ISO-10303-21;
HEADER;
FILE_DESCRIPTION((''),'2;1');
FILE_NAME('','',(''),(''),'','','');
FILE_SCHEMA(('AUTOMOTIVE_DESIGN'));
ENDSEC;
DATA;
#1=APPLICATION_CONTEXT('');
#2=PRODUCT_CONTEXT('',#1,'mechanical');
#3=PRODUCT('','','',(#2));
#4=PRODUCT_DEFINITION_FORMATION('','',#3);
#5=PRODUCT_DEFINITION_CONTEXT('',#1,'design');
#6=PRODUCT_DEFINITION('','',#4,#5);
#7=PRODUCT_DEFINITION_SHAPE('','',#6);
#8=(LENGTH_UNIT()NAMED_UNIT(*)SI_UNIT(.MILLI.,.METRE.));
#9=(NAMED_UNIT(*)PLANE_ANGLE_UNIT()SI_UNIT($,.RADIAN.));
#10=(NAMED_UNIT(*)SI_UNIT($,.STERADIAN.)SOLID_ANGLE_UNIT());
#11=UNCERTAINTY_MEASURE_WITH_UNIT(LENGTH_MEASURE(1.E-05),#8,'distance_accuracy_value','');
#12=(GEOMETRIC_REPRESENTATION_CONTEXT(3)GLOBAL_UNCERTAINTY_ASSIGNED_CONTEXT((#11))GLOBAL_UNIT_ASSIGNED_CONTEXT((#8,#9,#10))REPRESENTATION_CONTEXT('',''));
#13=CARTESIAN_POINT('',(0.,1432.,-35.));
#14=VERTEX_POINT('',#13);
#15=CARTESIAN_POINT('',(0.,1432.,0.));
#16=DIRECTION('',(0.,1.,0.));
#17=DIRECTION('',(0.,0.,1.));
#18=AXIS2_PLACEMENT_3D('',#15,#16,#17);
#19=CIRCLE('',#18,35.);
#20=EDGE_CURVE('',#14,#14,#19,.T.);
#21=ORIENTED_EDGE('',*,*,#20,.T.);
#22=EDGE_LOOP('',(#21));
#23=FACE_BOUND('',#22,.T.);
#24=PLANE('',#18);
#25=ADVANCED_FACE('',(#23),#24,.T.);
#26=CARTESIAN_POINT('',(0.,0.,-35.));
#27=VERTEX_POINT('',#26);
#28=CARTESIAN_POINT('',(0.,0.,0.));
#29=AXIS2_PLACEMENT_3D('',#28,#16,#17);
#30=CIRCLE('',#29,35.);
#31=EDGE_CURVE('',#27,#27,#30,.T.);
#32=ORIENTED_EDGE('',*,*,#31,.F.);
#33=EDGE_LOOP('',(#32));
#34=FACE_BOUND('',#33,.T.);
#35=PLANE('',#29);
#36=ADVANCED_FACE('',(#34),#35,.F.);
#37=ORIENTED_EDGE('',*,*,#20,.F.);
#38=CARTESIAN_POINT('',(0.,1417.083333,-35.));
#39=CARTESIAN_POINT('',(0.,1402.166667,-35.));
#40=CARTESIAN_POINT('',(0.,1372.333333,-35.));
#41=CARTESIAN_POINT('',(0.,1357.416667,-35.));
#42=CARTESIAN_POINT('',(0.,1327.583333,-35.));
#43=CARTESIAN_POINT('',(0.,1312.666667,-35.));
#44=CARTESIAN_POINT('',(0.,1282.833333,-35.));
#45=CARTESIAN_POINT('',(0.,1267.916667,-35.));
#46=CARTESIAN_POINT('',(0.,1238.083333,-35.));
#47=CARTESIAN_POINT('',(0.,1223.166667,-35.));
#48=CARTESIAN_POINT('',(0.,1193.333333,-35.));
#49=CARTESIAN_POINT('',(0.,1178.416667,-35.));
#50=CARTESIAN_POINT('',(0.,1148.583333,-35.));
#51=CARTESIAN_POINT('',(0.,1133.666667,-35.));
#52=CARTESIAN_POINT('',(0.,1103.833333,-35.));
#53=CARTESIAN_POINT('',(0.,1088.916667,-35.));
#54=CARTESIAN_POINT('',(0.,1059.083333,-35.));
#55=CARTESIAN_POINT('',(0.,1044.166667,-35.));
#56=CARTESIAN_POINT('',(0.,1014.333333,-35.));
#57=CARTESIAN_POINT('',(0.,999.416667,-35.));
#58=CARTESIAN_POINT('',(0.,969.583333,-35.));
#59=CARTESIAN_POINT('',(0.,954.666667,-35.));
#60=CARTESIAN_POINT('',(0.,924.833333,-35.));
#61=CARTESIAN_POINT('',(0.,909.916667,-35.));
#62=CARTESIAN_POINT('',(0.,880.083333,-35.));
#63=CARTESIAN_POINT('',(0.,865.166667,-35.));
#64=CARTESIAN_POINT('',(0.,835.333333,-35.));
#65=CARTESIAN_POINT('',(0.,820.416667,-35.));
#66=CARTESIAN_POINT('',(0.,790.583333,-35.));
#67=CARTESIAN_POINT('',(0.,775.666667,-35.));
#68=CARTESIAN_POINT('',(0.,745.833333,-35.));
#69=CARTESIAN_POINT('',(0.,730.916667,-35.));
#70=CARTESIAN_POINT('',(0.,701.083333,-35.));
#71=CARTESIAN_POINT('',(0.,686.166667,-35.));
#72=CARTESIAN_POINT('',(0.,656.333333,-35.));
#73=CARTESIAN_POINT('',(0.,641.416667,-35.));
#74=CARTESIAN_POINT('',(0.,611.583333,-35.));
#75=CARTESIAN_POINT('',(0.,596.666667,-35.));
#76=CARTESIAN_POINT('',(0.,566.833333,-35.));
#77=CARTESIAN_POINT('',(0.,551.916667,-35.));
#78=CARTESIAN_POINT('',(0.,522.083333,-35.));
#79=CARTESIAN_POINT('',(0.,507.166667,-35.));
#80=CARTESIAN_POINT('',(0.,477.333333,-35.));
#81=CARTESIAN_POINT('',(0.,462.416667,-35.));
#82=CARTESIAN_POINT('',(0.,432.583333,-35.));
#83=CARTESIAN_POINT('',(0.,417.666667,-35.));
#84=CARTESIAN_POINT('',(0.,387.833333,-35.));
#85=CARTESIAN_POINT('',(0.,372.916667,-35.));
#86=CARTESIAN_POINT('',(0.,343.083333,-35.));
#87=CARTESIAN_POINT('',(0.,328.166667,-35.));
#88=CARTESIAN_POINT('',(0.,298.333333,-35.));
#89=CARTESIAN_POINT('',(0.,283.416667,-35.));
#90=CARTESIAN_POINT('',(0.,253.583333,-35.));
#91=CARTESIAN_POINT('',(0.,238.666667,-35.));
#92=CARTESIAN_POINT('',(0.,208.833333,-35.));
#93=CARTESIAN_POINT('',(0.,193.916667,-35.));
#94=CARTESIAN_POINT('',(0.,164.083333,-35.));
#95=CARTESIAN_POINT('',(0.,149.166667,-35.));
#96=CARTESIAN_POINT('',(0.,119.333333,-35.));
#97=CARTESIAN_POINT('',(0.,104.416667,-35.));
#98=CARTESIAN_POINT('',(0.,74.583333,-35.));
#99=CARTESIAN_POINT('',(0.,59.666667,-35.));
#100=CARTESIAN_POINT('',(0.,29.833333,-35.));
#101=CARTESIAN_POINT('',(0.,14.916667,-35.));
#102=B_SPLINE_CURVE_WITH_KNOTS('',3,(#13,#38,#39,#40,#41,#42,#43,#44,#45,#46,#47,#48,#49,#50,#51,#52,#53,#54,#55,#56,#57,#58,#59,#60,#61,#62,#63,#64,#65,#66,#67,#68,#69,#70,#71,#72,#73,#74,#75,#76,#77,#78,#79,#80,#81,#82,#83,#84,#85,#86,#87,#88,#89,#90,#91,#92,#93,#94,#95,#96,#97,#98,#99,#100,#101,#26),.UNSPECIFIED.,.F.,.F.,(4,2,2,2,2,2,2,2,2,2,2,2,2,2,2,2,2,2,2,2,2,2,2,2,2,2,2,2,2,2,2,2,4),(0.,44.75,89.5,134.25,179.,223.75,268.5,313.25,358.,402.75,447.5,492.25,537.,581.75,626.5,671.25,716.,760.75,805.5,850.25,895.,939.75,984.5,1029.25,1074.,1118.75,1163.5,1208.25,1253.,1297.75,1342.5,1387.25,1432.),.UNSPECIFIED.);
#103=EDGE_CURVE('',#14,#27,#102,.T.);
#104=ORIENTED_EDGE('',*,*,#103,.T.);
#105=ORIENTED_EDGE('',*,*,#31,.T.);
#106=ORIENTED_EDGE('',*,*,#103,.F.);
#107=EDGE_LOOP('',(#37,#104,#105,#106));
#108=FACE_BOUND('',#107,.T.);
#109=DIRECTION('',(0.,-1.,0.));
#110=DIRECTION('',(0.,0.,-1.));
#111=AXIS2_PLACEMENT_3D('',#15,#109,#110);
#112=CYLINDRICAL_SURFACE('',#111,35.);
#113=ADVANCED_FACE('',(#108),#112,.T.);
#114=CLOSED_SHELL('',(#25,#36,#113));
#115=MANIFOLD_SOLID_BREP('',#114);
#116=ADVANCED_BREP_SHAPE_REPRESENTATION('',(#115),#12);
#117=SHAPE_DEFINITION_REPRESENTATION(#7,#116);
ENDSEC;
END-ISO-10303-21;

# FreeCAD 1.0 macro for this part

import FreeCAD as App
import Part
import Sketcher
Q = App.Units.Quantity

doc = App.newDocument("Part")
params = doc.addObject("Spreadsheet::Sheet", "Params")
for row, (alias, value) in enumerate([
    ("sketch1_diameter", "70 mm"),
    ("pad1_length", "1432 mm"),
], start=1):
    params.set(f"A{row}", alias)
    params.set(f"B{row}", "=" + value)
    params.setAlias(f"B{row}", alias)

body = doc.addObject("PartDesign::Body", "Body")

sketch1 = doc.addObject("Sketcher::SketchObject", "Sketch")
body.addObject(sketch1)
sketch1.AttachmentSupport = (doc.XZ_Plane, [""])
sketch1.MapMode = "FlatFace"
sketch1.addGeometry(Part.Circle(App.Vector(0, 0, 0), App.Vector(0, 0, 1), 35), False)
sketch1.addConstraint([
    Sketcher.Constraint("Coincident", 0, 3, -1, 1),
    Sketcher.Constraint("Diameter", 0, Q("70 mm")),
])
sketch1.setExpression("Constraints[1]", "Params.sketch1_diameter")
pad1 = doc.addObject("PartDesign::Pad", "Pad")
body.addObject(pad1)
pad1.Profile = sketch1
pad1.setExpression("Length", "Params.pad1_length")
pad1.Reversed = True

doc.recompute()
